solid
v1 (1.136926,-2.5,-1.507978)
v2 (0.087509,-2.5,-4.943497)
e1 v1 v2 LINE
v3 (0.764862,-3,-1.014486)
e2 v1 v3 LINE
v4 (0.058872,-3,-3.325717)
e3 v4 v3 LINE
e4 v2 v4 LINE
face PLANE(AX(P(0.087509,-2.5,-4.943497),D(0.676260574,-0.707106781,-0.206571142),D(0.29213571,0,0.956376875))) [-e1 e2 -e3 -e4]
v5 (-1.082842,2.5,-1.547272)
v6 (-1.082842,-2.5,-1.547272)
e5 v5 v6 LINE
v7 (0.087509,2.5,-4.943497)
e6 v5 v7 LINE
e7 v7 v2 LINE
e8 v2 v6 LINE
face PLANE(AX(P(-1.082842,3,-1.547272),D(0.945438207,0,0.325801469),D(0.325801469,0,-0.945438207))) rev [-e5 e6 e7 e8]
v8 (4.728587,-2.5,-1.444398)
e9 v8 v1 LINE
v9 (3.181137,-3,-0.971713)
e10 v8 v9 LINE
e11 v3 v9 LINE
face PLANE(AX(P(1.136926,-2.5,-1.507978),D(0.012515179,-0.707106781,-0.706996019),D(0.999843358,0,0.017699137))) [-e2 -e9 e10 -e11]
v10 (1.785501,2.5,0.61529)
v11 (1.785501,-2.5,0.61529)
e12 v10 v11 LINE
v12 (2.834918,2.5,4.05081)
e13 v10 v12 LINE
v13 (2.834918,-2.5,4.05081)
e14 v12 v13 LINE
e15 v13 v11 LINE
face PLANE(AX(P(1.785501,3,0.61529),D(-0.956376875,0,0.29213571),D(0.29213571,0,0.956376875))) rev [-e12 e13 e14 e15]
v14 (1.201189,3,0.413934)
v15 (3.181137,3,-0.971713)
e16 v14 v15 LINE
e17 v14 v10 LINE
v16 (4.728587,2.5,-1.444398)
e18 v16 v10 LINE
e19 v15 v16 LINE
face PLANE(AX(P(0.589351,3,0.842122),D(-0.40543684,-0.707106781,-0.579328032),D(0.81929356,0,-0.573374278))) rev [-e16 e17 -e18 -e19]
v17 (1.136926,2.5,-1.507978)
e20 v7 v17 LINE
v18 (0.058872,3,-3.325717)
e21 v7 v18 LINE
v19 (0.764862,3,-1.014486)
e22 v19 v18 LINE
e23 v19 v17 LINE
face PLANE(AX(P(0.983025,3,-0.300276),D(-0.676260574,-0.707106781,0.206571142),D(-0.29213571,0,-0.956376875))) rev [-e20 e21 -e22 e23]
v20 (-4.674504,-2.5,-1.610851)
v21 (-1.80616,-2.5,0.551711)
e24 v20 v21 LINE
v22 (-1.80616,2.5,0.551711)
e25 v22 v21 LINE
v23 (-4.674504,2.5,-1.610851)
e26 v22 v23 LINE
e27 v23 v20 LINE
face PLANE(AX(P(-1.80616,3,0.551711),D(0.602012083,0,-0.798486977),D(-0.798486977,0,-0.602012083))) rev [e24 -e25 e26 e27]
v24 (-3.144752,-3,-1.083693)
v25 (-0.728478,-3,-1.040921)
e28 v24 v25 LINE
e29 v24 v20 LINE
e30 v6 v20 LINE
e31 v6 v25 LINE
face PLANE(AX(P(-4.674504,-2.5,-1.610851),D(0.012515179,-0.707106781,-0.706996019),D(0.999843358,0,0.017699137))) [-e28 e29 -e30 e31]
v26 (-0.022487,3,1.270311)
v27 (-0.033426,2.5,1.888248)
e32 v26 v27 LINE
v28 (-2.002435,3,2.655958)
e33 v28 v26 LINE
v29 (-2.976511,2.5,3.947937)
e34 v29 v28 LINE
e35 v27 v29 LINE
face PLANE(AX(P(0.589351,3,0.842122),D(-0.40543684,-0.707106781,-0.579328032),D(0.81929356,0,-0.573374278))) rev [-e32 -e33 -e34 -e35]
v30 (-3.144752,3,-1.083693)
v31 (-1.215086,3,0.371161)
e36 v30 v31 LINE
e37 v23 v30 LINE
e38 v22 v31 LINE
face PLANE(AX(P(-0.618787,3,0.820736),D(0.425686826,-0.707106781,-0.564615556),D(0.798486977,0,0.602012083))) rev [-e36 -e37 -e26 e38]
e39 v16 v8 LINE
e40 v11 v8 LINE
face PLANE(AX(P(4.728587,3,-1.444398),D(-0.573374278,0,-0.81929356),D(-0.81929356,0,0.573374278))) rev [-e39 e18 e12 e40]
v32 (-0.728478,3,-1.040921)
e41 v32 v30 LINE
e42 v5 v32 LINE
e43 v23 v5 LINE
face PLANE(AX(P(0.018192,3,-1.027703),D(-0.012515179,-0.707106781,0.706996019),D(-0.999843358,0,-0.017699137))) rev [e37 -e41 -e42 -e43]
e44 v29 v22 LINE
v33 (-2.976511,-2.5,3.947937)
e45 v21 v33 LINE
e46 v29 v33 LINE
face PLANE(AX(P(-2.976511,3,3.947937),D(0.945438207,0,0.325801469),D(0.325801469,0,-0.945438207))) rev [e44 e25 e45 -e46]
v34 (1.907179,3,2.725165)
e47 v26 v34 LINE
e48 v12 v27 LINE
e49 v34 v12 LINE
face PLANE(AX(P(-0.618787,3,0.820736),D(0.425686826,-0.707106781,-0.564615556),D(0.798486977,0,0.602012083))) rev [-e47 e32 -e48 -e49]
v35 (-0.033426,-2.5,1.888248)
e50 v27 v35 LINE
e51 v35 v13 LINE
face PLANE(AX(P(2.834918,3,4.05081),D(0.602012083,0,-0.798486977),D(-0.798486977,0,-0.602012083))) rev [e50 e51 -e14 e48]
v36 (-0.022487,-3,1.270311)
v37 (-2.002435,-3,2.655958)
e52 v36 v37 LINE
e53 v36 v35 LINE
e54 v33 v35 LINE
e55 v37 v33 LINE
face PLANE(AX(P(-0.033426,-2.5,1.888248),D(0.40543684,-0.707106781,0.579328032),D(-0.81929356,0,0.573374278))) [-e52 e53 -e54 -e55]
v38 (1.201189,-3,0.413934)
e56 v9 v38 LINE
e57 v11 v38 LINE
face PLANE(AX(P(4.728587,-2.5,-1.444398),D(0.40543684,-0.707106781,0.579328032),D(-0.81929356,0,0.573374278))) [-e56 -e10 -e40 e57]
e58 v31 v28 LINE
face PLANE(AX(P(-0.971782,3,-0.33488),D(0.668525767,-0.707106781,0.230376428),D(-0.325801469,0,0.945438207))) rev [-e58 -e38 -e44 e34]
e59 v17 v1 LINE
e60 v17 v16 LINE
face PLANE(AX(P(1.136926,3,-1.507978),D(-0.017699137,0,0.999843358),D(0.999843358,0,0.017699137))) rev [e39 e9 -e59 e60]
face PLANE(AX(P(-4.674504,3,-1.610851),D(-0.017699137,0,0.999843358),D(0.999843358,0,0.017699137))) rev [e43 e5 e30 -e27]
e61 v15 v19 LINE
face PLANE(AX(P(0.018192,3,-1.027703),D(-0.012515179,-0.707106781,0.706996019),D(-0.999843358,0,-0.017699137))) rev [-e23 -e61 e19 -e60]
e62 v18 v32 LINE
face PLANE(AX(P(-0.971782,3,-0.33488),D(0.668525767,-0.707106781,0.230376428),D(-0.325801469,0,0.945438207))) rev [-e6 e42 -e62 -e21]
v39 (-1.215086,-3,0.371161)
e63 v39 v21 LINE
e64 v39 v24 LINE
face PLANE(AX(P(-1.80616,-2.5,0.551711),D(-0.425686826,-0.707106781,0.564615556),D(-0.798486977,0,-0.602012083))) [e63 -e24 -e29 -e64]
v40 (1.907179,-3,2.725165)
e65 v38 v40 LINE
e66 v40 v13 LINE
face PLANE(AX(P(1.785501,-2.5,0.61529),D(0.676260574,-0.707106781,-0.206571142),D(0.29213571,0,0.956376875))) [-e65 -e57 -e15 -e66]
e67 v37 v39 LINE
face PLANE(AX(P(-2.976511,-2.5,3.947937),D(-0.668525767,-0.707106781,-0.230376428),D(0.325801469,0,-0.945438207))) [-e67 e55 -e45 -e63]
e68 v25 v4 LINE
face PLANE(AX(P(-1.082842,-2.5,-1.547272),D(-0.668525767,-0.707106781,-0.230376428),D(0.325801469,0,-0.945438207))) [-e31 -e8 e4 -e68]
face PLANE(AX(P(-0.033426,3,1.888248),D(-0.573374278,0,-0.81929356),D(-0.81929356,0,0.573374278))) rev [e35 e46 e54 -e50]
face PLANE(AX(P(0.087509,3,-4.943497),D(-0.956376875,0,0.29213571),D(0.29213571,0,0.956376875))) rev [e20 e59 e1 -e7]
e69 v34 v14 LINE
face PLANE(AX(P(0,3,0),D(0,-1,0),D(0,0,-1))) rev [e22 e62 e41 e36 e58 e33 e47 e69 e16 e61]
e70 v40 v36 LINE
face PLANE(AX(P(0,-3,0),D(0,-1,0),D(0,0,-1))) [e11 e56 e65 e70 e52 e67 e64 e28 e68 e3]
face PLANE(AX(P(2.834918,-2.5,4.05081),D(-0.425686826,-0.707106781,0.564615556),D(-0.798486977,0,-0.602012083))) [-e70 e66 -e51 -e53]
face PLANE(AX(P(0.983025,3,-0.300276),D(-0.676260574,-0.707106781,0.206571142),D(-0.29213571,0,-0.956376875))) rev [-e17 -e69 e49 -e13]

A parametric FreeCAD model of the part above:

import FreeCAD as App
import Part
import Sketcher
Q = App.Units.Quantity


def edges_at(feature, points):
    """Names of the edges that pass closest to the given points."""
    edges = feature.Shape.Edges
    near = lambda p: min(range(len(edges)), key=lambda i: edges[i].distToShape(Part.Vertex(*p))[0])
    return sorted({f"Edge{near(p) + 1}" for p in points})


def add_polygon(sketch, points):
    """Adds a closed chain of lines whose ends are joined by coincident constraints."""
    first, n = sketch.GeometryCount, len(points)
    for a, b in zip(points, points[1:] + points[:1]):
        sketch.addGeometry(Part.LineSegment(App.Vector(*a, 0), App.Vector(*b, 0)), False)
    for i in range(n):
        sketch.addConstraint(Sketcher.Constraint("Coincident", first + i, 2, first + (i + 1) % n, 1))

doc = App.newDocument("Part")
body = doc.addObject("PartDesign::Body", "Body")

sketch1 = doc.addObject("Sketcher::SketchObject", "Sketch")
body.addObject(sketch1)
sketch1.AttachmentSupport = (doc.XZ_Plane, [""])
sketch1.MapMode = "FlatFace"
add_polygon(sketch1, [(-1.082842, -1.547272), (-4.674504, -1.610851), (-1.80616, 0.551711), (-2.976511, 3.947937), (-0.033426, 1.888248), (2.834918, 4.05081), (1.785501, 0.61529), (4.728587, -1.444398), (1.136926, -1.507978), (0.087509, -4.943497)])
sketch1.addConstraint([
    Sketcher.Constraint("Parallel", 1, 4),
    Sketcher.Constraint("Parallel", 3, 6),
    Sketcher.Constraint("Parallel", 0, 7),
    Sketcher.Constraint("Parallel", 5, 8),
    Sketcher.Constraint("Parallel", 2, 9),
    Sketcher.Constraint("Equal", 0, 1),
    Sketcher.Constraint("Equal", 1, 2),
    Sketcher.Constraint("Equal", 2, 3),
    Sketcher.Constraint("Equal", 3, 4),
    Sketcher.Constraint("Equal", 4, 5),
    Sketcher.Constraint("Equal", 5, 6),
    Sketcher.Constraint("Equal", 6, 7),
    Sketcher.Constraint("Equal", 7, 8),
    Sketcher.Constraint("Equal", 8, 9),
    Sketcher.Constraint("DistanceX", -1, 1, 5, 2, Q("1.785501 mm")),
    Sketcher.Constraint("DistanceY", 6, 2, -1, 1, Q("1.444398 mm")),
    Sketcher.Constraint("DistanceY", 0, 2, 3, 2, Q("3.499099 mm")),
    Sketcher.Constraint("DistanceY", 0, 2, -1, 1, Q("1.610851 mm")),
    Sketcher.Constraint("DistanceX", 1, 2, -1, 1, Q("1.80616 mm")),
    Sketcher.Constraint("DistanceY", -1, 1, 1, 2, Q("0.551711 mm")),
])
pad1 = doc.addObject("PartDesign::Pad", "Pad")
body.addObject(pad1)
pad1.Profile = sketch1
pad1.Length = 6
pad1.Midplane = True
doc.recompute()

chamfer = doc.addObject("PartDesign::Chamfer", "Chamfer")
body.addObject(chamfer)
chamfer.Base = (pad1, edges_at(pad1, [
    (0.612, -3, -3.226),
    (2.933, -3, -1.476),
    (3.257, -3, -0.415),
    (2.31, -3, 2.333),
    (1.401, -3, 2.97),
    (-1.505, -3, 2.918),
    (-2.391, -3, 2.25),
    (-3.24, 3, -0.53),
    (-3.24, -3, -0.53),
    (-2.879, -3, -1.579),
    (-0.498, -3, -3.245),
    (-2.391, 3, 2.25),
    (-1.505, 3, 2.918),
    (1.401, 3, 2.97),
    (2.31, 3, 2.333),
    (3.257, 3, -0.415),
    (2.933, 3, -1.476),
    (0.612, 3, -3.226),
    (-0.498, 3, -3.245),
    (-2.879, 3, -1.579),
]))
chamfer.Size = 0.5

doc.recompute()
